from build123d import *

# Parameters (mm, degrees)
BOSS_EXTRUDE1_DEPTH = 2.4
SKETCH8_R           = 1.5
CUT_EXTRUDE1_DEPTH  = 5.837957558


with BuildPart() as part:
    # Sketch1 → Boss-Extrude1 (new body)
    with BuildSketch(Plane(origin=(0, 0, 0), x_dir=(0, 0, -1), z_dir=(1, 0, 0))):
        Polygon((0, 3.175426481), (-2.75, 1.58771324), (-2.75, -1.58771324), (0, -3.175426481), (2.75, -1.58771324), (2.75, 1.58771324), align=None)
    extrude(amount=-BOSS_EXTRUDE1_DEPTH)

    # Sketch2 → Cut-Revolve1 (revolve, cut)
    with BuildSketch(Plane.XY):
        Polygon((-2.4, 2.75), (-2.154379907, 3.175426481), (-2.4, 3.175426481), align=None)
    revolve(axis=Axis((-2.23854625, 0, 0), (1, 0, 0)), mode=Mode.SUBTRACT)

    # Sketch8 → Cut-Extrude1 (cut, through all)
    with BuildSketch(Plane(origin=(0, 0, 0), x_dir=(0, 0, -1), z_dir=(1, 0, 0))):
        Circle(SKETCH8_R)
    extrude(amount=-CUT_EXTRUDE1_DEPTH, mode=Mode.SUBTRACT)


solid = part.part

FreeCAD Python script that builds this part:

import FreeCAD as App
import Part
import Sketcher
Q = App.Units.Quantity


def add_polygon(sketch, points):
    """Adds a closed chain of lines whose ends are joined by coincident constraints."""
    first, n = sketch.GeometryCount, len(points)
    for a, b in zip(points, points[1:] + points[:1]):
        sketch.addGeometry(Part.LineSegment(App.Vector(*a, 0), App.Vector(*b, 0)), False)
    for i in range(n):
        sketch.addConstraint(Sketcher.Constraint("Coincident", first + i, 2, first + (i + 1) % n, 1))

doc = App.newDocument("Part")
params = doc.addObject("Spreadsheet::Sheet", "Params")
for row, (alias, value) in enumerate([
    ("pad1_length", "2.4 mm"),
    ("groove_angle", "360 deg"),
    ("sketch3_diameter", "3 mm"),
], start=1):
    params.set(f"A{row}", alias)
    params.set(f"B{row}", "=" + value)
    params.setAlias(f"B{row}", alias)

body = doc.addObject("PartDesign::Body", "Body")

sketch1 = body.newObject("Sketcher::SketchObject", "Sketch")
sketch1.AttachmentSupport = (doc.getObject("YZ_Plane"), [""])
sketch1.MapMode = "FlatFace"
add_polygon(sketch1, [(3.175426, 0), (1.587713, 2.75), (-1.587713, 2.75), (-3.175426, 0), (-1.587713, -2.75), (1.587713, -2.75)])
sketch1.addConstraint([
    Sketcher.Constraint("Horizontal", 1),
    Sketcher.Constraint("Horizontal", 4),
    Sketcher.Constraint("Symmetric", 0, 2, 3, 2, -1, 1),
    Sketcher.Constraint("Symmetric", 2, 2, 5, 2, -1, 1),
    Sketcher.Constraint("PointOnObject", 2, 2, -1),
    Sketcher.Constraint("Parallel", 2, 5),
    Sketcher.Constraint("Vertical", 1, 2, 3, 2),
    Sketcher.Constraint("Angle", 0, Q("120 deg")),
    Sketcher.Constraint("DistanceY", 3, 2, 1, 2, Q("5.5 mm")),
    Sketcher.Constraint("DistanceX", 1, 2, 1, 1, Q("3.175426 mm")),
])
pad1 = body.newObject("PartDesign::Pad", "Pad")
pad1.Profile = sketch1
pad1.setExpression("Length", "Params.pad1_length")
pad1.Reversed = True

sketch2 = body.newObject("Sketcher::SketchObject", "Sketch001")
sketch2.AttachmentSupport = (doc.getObject("XY_Plane"), [""])
sketch2.MapMode = "FlatFace"
add_polygon(sketch2, [(-2.4, 2.75), (-2.15438, 3.175426), (-2.4, 3.175426)])
sketch2.addConstraint([
    Sketcher.Constraint("Horizontal", 1),
    Sketcher.Constraint("Vertical", 2),
    Sketcher.Constraint("Angle", 0, Q("60 deg")),
    Sketcher.Constraint("DistanceX", 1, 2, -1, 1, Q("2.4 mm")),
    Sketcher.Constraint("DistanceY", -1, 1, 2, 2, Q("2.75 mm")),
    Sketcher.Constraint("DistanceX", 1, 2, 1, 1, Q("0.24562 mm")),
])
groove = body.newObject("PartDesign::Groove", "Groove")
groove.Profile = sketch2
groove.ReferenceAxis = (sketch2, ["H_Axis"])
groove.setExpression("Angle", "Params.groove_angle")

sketch3 = body.newObject("Sketcher::SketchObject", "Sketch002")
sketch3.AttachmentSupport = (doc.getObject("YZ_Plane"), [""])
sketch3.MapMode = "FlatFace"
sketch3.addGeometry(Part.Circle(App.Vector(0, 0, 0), App.Vector(0, 0, 1), 1.5), False)
sketch3.addConstraint([
    Sketcher.Constraint("Coincident", 0, 3, -1, 1),
    Sketcher.Constraint("Diameter", 0, Q("3 mm")),
])
sketch3.setExpression("Constraints[1]", "Params.sketch3_diameter")
pocket1 = body.newObject("PartDesign::Pocket", "Pocket")
pocket1.Profile = sketch3
pocket1.Type = "ThroughAll"

doc.recompute()
